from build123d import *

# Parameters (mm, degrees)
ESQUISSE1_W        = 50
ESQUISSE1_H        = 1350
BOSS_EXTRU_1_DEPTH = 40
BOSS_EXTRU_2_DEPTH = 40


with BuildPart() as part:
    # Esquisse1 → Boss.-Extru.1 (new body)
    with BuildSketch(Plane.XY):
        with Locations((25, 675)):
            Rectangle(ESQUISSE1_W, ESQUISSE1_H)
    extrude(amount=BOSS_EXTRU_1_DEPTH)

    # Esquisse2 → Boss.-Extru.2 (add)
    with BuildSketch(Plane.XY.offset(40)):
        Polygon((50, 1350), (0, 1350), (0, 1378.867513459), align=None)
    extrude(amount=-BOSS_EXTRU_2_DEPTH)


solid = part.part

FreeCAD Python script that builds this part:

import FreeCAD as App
import Part
import Sketcher

V = App.Vector
Q = App.Units.Quantity


def add_polygon(sketch, points):
    """Adds a closed chain of lines whose ends are joined by coincident constraints."""
    first, n = sketch.GeometryCount, len(points)
    for a, b in zip(points, points[1:] + points[:1]):
        sketch.addGeometry(Part.LineSegment(App.Vector(*a, 0), App.Vector(*b, 0)), False)
    for i in range(n):
        sketch.addConstraint(Sketcher.Constraint("Coincident", first + i, 2, first + (i + 1) % n, 1))

doc = App.newDocument("Part")
body = doc.addObject("PartDesign::Body", "Body")

sketch1 = doc.addObject("Sketcher::SketchObject", "Sketch")
body.addObject(sketch1)
sketch1.AttachmentSupport = (doc.XY_Plane, [""])
sketch1.MapMode = "FlatFace"
add_polygon(sketch1, [(0, 1350), (0, 0), (50, 0), (50, 1350)])
sketch1.addConstraint([
    Sketcher.Constraint("Vertical", 0),
    Sketcher.Constraint("Horizontal", 1),
    Sketcher.Constraint("Vertical", 2),
    Sketcher.Constraint("Horizontal", 3),
    Sketcher.Constraint("Coincident", 0, 2, -1, 1),
    Sketcher.Constraint("DistanceX", 1, 1, 1, 2, 50.0),
    Sketcher.Constraint("DistanceY", 0, 2, 0, 1, 1350.0),
])
pad1 = doc.addObject("PartDesign::Pad", "Pad")
body.addObject(pad1)
pad1.Profile = sketch1
pad1.Length = 40

sketch2 = doc.addObject("Sketcher::SketchObject", "Sketch001")
body.addObject(sketch2)
sketch2.AttachmentSupport = (doc.XY_Plane, [""])
sketch2.MapMode = "FlatFace"
sketch2.AttachmentOffset = App.Placement(V(0, 0, 40), App.Rotation())
add_polygon(sketch2, [(0, 1350), (50, 1350), (0, 1379)])
sketch2.addConstraint([
    Sketcher.Constraint("Horizontal", 0),
    Sketcher.Constraint("Vertical", 2),
    Sketcher.Constraint("PointOnObject", 1, 2, -2),
    Sketcher.Constraint("DistanceX", 0, 1, 0, 2, 50.0),
    Sketcher.Constraint("Angle", 1, Q("150 deg")),
    Sketcher.Constraint("DistanceY", -1, 1, 0, 2, 1350.0),
])
pad2 = doc.addObject("PartDesign::Pad", "Pad001")
body.addObject(pad2)
pad2.Profile = sketch2
pad2.Length = 40
pad2.Reversed = True

doc.recompute()
